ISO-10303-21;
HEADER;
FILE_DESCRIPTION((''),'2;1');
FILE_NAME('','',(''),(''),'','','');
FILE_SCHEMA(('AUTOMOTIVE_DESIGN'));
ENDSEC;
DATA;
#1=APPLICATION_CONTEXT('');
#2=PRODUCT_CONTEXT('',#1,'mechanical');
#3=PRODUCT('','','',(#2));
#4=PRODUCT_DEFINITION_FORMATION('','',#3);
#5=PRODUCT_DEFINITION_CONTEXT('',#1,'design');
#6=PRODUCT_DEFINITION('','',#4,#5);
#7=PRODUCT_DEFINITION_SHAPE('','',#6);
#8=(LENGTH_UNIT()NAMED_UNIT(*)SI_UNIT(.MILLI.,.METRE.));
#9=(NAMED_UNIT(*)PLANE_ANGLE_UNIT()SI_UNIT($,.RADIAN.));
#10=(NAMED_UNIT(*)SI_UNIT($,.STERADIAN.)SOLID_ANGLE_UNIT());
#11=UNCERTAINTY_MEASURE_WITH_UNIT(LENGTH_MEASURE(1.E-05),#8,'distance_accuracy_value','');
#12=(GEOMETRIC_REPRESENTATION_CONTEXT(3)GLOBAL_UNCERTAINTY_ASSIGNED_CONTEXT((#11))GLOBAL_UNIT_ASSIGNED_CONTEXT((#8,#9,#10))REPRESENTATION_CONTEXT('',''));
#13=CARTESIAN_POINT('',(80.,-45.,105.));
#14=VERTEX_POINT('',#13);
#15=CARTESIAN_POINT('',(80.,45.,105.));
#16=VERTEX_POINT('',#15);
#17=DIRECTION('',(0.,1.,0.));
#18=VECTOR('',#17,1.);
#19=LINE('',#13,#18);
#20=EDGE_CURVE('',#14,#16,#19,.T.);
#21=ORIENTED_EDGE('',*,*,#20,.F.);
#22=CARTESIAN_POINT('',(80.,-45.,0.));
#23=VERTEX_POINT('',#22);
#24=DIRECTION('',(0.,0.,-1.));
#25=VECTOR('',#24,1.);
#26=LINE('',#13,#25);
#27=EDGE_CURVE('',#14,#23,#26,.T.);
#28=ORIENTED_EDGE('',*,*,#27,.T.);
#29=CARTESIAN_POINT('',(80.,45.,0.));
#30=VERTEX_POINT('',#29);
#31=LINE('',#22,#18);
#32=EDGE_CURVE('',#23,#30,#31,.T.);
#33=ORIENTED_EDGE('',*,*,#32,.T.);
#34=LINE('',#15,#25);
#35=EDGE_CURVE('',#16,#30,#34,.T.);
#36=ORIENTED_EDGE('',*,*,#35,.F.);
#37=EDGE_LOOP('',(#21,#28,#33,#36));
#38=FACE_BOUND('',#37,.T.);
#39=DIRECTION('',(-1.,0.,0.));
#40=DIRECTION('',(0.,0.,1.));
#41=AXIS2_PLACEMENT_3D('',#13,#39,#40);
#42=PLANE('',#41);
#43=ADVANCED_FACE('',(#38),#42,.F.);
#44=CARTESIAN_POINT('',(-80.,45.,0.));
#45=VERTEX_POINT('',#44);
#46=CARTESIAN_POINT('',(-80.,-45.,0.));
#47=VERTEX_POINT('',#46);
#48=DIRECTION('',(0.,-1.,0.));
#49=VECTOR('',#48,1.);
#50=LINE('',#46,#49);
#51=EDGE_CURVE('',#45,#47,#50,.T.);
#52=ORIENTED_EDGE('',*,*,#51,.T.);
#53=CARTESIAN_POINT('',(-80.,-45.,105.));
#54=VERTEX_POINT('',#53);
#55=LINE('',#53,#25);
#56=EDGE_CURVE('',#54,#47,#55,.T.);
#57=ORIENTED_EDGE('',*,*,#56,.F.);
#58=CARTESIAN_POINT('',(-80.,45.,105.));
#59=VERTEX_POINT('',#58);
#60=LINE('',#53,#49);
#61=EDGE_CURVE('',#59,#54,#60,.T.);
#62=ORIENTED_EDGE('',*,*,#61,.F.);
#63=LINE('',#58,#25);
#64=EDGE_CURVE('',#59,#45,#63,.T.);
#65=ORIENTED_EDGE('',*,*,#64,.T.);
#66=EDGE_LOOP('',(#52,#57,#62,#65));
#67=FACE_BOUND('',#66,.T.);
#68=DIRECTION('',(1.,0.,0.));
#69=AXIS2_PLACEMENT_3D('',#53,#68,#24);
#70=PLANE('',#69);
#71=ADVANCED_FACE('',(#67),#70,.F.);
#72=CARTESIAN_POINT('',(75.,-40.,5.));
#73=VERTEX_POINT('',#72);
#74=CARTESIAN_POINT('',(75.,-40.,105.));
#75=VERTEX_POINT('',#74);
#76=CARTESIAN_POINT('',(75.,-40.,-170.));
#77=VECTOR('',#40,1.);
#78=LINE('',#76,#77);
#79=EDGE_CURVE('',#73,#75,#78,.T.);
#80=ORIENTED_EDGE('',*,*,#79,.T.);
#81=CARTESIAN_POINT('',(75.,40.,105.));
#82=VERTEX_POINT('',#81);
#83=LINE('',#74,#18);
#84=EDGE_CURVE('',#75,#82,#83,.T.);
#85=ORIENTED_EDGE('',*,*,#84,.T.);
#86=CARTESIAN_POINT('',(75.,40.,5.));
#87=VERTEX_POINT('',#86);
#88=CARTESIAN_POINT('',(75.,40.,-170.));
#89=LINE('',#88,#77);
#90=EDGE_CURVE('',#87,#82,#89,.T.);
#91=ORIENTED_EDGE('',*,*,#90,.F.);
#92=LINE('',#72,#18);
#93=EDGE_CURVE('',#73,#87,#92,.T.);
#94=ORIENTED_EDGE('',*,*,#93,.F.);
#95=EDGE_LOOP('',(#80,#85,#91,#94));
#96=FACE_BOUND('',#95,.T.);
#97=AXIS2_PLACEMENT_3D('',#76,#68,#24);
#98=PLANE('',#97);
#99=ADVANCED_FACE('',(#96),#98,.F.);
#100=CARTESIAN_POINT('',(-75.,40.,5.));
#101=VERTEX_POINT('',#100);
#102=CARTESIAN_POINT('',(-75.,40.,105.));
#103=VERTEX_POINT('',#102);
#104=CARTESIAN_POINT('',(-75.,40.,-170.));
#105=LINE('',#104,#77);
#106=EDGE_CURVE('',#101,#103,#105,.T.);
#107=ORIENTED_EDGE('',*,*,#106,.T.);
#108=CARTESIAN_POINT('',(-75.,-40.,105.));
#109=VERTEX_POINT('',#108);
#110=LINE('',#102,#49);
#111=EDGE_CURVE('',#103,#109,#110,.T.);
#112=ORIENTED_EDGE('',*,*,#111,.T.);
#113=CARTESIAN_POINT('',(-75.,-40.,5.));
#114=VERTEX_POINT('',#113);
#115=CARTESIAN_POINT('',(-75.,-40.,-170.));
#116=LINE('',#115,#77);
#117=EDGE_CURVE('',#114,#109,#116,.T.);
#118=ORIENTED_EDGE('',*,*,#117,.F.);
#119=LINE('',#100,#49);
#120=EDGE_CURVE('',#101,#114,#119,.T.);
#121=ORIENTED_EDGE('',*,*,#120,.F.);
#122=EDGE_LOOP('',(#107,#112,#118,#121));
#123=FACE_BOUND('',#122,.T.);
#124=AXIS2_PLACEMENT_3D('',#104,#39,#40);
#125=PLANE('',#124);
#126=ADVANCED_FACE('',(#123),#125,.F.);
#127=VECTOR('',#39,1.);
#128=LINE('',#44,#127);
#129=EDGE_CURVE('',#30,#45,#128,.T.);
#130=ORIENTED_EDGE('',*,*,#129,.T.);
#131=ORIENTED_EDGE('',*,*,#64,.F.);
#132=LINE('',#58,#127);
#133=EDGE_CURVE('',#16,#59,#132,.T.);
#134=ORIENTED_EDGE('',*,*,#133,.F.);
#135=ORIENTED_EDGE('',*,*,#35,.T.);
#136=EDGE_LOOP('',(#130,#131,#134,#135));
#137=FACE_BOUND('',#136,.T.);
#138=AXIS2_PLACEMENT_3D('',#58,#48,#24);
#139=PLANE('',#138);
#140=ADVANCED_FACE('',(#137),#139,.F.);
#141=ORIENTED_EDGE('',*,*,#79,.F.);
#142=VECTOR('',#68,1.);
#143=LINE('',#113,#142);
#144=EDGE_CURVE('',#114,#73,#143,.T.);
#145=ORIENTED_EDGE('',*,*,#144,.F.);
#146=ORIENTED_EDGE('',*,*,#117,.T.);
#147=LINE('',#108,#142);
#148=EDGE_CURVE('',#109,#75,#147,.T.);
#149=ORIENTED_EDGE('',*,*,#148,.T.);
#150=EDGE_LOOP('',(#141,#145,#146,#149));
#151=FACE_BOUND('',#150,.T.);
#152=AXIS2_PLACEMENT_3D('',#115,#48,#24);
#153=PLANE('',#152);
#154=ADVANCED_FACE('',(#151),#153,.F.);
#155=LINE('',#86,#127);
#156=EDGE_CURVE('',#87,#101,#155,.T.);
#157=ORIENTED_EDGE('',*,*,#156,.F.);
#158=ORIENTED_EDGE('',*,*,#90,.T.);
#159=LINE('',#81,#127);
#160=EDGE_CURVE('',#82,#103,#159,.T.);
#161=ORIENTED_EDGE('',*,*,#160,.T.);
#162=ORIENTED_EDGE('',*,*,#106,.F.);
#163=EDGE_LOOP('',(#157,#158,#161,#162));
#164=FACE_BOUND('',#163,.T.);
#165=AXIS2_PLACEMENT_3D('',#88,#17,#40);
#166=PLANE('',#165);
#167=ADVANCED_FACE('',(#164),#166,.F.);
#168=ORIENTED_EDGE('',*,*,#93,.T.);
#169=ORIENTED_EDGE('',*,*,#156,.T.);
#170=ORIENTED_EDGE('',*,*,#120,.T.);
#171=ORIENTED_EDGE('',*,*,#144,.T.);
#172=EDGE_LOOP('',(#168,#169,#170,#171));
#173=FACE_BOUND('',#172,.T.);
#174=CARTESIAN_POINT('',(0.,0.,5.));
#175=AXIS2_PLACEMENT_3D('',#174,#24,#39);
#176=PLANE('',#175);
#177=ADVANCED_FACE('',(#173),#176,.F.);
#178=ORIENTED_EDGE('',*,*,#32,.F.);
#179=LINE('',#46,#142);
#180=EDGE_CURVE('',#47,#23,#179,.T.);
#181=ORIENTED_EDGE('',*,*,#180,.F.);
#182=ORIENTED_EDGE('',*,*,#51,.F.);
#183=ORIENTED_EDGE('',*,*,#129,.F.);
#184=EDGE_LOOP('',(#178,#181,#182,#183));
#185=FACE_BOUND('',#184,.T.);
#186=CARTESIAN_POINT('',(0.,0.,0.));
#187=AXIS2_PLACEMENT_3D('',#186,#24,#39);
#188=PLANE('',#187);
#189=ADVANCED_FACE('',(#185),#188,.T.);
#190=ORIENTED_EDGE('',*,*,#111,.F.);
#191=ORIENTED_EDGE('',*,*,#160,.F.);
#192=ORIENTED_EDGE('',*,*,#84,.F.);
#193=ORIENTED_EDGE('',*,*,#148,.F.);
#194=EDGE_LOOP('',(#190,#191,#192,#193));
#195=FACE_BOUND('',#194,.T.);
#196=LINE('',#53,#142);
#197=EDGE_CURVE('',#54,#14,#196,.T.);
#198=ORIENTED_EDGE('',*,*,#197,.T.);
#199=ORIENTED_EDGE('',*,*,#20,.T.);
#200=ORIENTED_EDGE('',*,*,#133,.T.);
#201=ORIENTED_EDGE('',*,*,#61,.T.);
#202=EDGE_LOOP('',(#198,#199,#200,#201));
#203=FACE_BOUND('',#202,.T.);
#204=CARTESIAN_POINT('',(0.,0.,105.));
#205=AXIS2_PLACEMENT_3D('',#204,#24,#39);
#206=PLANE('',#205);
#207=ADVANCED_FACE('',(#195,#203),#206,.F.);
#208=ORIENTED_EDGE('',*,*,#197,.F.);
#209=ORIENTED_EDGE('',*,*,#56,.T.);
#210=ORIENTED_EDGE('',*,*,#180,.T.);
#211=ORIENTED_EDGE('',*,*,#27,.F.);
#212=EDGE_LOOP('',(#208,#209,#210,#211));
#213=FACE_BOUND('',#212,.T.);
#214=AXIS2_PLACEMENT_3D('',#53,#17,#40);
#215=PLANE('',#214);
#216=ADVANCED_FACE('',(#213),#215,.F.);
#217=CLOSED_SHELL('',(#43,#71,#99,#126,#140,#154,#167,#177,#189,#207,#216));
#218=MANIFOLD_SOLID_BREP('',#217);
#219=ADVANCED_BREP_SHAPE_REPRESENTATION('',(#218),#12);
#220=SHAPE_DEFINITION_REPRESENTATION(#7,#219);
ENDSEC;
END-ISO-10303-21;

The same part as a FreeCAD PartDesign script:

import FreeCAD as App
import Part
import Sketcher

V = App.Vector

doc = App.newDocument("Part")
params = doc.addObject("Spreadsheet::Sheet", "Params")
for row, (alias, value) in enumerate([
    ("sketch1_width", "160 mm"),
    ("sketch1_height", "90 mm"),
    ("pad1_length", "105 mm"),
    ("sketch2_width", "150 mm"),
    ("sketch2_height", "80 mm"),
    ("pocket1_length", "100 mm"),
], start=1):
    params.set(f"A{row}", alias)
    params.set(f"B{row}", "=" + value)
    params.setAlias(f"B{row}", alias)

body = doc.addObject("PartDesign::Body", "Body")

# Sketch on XY plane
sketch1 = doc.addObject("Sketcher::SketchObject", "Sketch")
body.addObject(sketch1)
sketch1.AttachmentSupport = (doc.XY_Plane, [""])
sketch1.MapMode = "FlatFace"
sketch1.addGeometry([
    Part.LineSegment(V(-80, 45, 0), V(-80, -45, 0)),
    Part.LineSegment(V(-80, -45, 0), V(80, -45, 0)),
    Part.LineSegment(V(80, -45, 0), V(80, 45, 0)),
    Part.LineSegment(V(80, 45, 0), V(-80, 45, 0)),
], False)
sketch1.addConstraint([
    Sketcher.Constraint("Coincident", 0, 2, 1, 1),
    Sketcher.Constraint("Coincident", 1, 2, 2, 1),
    Sketcher.Constraint("Coincident", 2, 2, 3, 1),
    Sketcher.Constraint("Coincident", 3, 2, 0, 1),
    Sketcher.Constraint("Vertical", 0),
    Sketcher.Constraint("Horizontal", 1),
    Sketcher.Constraint("Vertical", 2),
    Sketcher.Constraint("Horizontal", 3),
    Sketcher.Constraint("Symmetric", 0, 2, 2, 2, -1, 1),
    Sketcher.Constraint("DistanceX", 1, 1, 1, 2, 160.0),
    Sketcher.Constraint("DistanceY", 0, 2, 0, 1, 90.0),
])
sketch1.setExpression("Constraints[9]", "Params.sketch1_width")
sketch1.setExpression("Constraints[10]", "Params.sketch1_height")
pad1 = doc.addObject("PartDesign::Pad", "Pad")
body.addObject(pad1)
pad1.Profile = sketch1
pad1.setExpression("Length", "Params.pad1_length")

# Sketch on XY plane
sketch2 = doc.addObject("Sketcher::SketchObject", "Sketch001")
body.addObject(sketch2)
sketch2.AttachmentSupport = (doc.XY_Plane, [""])
sketch2.MapMode = "FlatFace"
sketch2.AttachmentOffset = App.Placement(V(0, 0, 105), App.Rotation())
sketch2.addGeometry([
    Part.LineSegment(V(-75, 40, 0), V(-75, -40, 0)),
    Part.LineSegment(V(-75, -40, 0), V(75, -40, 0)),
    Part.LineSegment(V(75, -40, 0), V(75, 40, 0)),
    Part.LineSegment(V(75, 40, 0), V(-75, 40, 0)),
], False)
sketch2.addConstraint([
    Sketcher.Constraint("Coincident", 0, 2, 1, 1),
    Sketcher.Constraint("Coincident", 1, 2, 2, 1),
    Sketcher.Constraint("Coincident", 2, 2, 3, 1),
    Sketcher.Constraint("Coincident", 3, 2, 0, 1),
    Sketcher.Constraint("Vertical", 0),
    Sketcher.Constraint("Horizontal", 1),
    Sketcher.Constraint("Vertical", 2),
    Sketcher.Constraint("Horizontal", 3),
    Sketcher.Constraint("Symmetric", 0, 2, 2, 2, -1, 1),
    Sketcher.Constraint("DistanceX", 1, 1, 1, 2, 150.0),
    Sketcher.Constraint("DistanceY", 0, 2, 0, 1, 80.0),
])
sketch2.setExpression("Constraints[9]", "Params.sketch2_width")
sketch2.setExpression("Constraints[10]", "Params.sketch2_height")
pocket1 = doc.addObject("PartDesign::Pocket", "Pocket")
body.addObject(pocket1)
pocket1.Profile = sketch2
pocket1.setExpression("Length", "Params.pocket1_length")

doc.recompute()
